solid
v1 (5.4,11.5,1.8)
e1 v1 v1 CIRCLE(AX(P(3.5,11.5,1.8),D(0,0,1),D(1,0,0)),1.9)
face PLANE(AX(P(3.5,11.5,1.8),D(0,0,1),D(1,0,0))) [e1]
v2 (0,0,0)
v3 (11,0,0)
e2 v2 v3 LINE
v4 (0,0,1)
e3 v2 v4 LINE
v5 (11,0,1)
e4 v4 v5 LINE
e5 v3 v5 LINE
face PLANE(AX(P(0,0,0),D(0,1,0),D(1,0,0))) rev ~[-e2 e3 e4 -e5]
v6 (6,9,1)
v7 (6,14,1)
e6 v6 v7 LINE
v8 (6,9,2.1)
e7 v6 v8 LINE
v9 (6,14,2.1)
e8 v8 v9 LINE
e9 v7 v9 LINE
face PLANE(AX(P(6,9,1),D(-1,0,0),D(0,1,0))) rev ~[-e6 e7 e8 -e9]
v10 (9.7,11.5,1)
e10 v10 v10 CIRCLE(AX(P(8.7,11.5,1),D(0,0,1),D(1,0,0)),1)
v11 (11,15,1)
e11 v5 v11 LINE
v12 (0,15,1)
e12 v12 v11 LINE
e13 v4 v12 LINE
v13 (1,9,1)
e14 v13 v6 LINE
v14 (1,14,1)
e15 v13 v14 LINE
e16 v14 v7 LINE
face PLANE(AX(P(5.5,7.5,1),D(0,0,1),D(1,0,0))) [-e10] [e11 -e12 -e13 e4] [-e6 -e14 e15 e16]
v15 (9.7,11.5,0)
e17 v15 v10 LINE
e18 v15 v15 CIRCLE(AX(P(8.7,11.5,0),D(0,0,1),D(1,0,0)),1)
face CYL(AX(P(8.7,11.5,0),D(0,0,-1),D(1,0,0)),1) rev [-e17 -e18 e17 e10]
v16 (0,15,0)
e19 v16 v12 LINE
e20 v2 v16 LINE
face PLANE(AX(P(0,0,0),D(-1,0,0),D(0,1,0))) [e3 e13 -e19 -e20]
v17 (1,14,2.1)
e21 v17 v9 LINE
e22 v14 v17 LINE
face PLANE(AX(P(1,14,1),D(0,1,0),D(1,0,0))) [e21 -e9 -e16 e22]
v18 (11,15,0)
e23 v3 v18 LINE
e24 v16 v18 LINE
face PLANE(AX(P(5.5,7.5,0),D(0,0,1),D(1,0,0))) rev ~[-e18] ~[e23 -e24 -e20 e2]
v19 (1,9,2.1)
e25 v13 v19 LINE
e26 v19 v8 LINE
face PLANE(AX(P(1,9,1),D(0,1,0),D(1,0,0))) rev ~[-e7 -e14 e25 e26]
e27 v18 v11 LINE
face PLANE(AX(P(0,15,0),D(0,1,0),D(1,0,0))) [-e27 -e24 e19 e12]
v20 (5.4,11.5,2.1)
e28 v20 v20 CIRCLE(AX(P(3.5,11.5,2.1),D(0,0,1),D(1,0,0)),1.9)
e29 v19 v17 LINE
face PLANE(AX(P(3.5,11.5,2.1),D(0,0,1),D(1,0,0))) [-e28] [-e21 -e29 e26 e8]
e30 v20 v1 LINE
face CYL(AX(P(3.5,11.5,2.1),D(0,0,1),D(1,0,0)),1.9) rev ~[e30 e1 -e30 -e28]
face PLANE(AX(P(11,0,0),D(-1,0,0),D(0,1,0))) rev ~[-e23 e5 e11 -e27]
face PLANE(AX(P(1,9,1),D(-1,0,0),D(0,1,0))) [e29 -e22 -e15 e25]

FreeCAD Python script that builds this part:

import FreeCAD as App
import Part
import Sketcher
Q = App.Units.Quantity


def add_polygon(sketch, points):
    """Adds a closed chain of lines whose ends are joined by coincident constraints."""
    first, n = sketch.GeometryCount, len(points)
    for a, b in zip(points, points[1:] + points[:1]):
        sketch.addGeometry(Part.LineSegment(App.Vector(*a, 0), App.Vector(*b, 0)), False)
    for i in range(n):
        sketch.addConstraint(Sketcher.Constraint("Coincident", first + i, 2, first + (i + 1) % n, 1))

doc = App.newDocument("Part")
body = doc.addObject("PartDesign::Body", "Body")

# Sketch on XY plane
sketch1 = doc.addObject("Sketcher::SketchObject", "Sketch")
body.addObject(sketch1)
sketch1.AttachmentSupport = (doc.XY_Plane, [""])
sketch1.MapMode = "FlatFace"
add_polygon(sketch1, [(0, 15), (0, 0), (11, 0), (11, 15)])  # lines 0-3
sketch1.addGeometry(Part.Circle(App.Vector(8.7, 11.5, 0), App.Vector(0, 0, 1), 1), False)  # 4
sketch1.addConstraint(Sketcher.Constraint("Vertical", 0))
sketch1.addConstraint(Sketcher.Constraint("Horizontal", 1))
sketch1.addConstraint(Sketcher.Constraint("Vertical", 2))
sketch1.addConstraint(Sketcher.Constraint("Horizontal", 3))
sketch1.addConstraint(Sketcher.Constraint("Coincident", 0, 2, -1, 1))
sketch1.addConstraint(Sketcher.Constraint("Diameter", 4, Q("2 mm")))
sketch1.addConstraint(Sketcher.Constraint("DistanceX", 1, 1, 1, 2, Q("11 mm")))
sketch1.addConstraint(Sketcher.Constraint("DistanceY", 0, 2, 0, 1, Q("15 mm")))
sketch1.addConstraint(Sketcher.Constraint("DistanceX", -1, 1, 4, 3, Q("8.7 mm")))
sketch1.addConstraint(Sketcher.Constraint("DistanceY", -1, 1, 4, 3, Q("11.5 mm")))
pad1 = doc.addObject("PartDesign::Pad", "Pad")
body.addObject(pad1)
pad1.Profile = sketch1
pad1.Length = 1

# Sketch on XY plane
sketch2 = doc.addObject("Sketcher::SketchObject", "Sketch001")
body.addObject(sketch2)
sketch2.AttachmentSupport = (doc.XY_Plane, [""])
sketch2.MapMode = "FlatFace"
sketch2.AttachmentOffset = App.Placement(App.Vector(0, 0, 1), App.Rotation())
add_polygon(sketch2, [(1, 14), (1, 9), (6, 9), (6, 14)])  # lines 0-3
sketch2.addConstraint(Sketcher.Constraint("Vertical", 0))
sketch2.addConstraint(Sketcher.Constraint("Horizontal", 1))
sketch2.addConstraint(Sketcher.Constraint("Vertical", 2))
sketch2.addConstraint(Sketcher.Constraint("Horizontal", 3))
sketch2.addConstraint(Sketcher.Constraint("Equal", 3, 0))
sketch2.addConstraint(Sketcher.Constraint("DistanceX", 1, 1, 1, 2, Q("5 mm")))
sketch2.addConstraint(Sketcher.Constraint("DistanceX", -1, 1, 0, 2, Q("1 mm")))
sketch2.addConstraint(Sketcher.Constraint("DistanceY", -1, 1, 0, 2, Q("9 mm")))
pad2 = doc.addObject("PartDesign::Pad", "Pad001")
body.addObject(pad2)
pad2.Profile = sketch2
pad2.Length = 1.1

# Sketch on XY plane
sketch3 = doc.addObject("Sketcher::SketchObject", "Sketch002")
body.addObject(sketch3)
sketch3.AttachmentSupport = (doc.XY_Plane, [""])
sketch3.MapMode = "FlatFace"
sketch3.AttachmentOffset = App.Placement(App.Vector(0, 0, 2.1), App.Rotation())
sketch3.addGeometry(Part.Circle(App.Vector(3.5, 11.5, 0), App.Vector(0, 0, 1), 1.9), False)
sketch3.addConstraint(Sketcher.Constraint("Diameter", 0, Q("3.8 mm")))
sketch3.addConstraint(Sketcher.Constraint("DistanceX", -1, 1, 0, 3, Q("3.5 mm")))
sketch3.addConstraint(Sketcher.Constraint("DistanceY", -1, 1, 0, 3, Q("11.5 mm")))
pocket1 = doc.addObject("PartDesign::Pocket", "Pocket")
body.addObject(pocket1)
pocket1.Profile = sketch3
pocket1.Length = 0.3

doc.recompute()
